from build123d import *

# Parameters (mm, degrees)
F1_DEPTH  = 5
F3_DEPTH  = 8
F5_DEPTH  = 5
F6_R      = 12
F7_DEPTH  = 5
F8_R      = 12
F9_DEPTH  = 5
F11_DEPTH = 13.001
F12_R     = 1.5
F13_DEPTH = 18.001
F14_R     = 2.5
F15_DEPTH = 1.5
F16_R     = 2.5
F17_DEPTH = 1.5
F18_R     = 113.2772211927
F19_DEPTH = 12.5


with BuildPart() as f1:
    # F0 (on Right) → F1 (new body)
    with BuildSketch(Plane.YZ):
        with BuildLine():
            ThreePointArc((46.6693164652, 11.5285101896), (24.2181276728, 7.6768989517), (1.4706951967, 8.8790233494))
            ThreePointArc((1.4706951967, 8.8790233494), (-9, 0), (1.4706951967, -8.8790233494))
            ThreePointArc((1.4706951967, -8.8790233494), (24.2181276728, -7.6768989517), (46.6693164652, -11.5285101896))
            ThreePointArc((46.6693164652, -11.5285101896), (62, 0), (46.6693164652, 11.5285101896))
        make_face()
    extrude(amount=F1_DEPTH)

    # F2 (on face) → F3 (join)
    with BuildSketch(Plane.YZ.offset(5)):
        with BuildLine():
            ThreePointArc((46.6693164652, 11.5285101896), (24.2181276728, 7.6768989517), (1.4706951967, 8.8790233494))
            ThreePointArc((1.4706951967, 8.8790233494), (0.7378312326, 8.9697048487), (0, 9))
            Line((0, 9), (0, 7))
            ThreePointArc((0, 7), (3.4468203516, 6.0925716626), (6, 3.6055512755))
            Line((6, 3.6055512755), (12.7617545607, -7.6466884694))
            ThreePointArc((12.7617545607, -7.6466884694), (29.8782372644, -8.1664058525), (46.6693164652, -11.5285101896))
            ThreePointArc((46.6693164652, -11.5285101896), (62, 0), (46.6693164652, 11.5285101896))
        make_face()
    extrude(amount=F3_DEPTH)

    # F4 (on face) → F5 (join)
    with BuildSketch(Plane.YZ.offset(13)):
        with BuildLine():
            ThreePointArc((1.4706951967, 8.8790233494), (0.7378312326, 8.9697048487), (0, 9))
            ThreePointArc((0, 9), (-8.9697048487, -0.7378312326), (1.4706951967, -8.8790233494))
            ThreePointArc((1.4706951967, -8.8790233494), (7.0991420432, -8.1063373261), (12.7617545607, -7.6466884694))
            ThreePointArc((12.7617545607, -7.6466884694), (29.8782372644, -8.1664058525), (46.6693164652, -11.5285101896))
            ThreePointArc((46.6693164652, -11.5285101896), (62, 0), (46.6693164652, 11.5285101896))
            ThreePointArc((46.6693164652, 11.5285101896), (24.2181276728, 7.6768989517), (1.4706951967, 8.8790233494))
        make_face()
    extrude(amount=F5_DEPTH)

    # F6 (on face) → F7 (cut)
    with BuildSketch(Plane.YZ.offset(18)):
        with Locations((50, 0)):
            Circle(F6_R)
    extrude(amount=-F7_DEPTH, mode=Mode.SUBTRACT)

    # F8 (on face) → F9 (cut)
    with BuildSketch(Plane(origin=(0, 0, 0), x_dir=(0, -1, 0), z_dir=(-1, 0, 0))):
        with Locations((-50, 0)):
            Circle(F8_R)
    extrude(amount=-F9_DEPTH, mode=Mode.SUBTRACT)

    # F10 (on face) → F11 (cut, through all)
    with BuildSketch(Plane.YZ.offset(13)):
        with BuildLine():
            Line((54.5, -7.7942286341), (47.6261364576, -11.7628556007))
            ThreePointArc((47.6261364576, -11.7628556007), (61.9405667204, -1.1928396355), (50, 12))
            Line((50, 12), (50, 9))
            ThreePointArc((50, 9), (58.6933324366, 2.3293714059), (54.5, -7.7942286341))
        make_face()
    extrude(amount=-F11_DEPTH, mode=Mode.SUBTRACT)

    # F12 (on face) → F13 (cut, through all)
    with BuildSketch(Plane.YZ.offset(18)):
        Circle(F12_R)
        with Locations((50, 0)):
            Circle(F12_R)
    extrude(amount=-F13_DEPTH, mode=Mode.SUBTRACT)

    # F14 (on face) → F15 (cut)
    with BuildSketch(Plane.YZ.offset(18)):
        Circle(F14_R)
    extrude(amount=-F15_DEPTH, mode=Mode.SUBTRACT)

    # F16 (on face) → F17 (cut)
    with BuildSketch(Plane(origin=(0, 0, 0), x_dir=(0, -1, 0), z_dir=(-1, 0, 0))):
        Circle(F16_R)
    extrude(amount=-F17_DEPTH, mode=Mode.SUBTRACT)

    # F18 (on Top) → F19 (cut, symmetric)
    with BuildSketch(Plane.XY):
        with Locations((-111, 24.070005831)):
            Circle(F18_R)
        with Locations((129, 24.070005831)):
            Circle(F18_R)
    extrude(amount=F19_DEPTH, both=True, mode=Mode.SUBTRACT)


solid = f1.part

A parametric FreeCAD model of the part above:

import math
import FreeCAD as App
import Part
import Sketcher

V = App.Vector
Q = App.Units.Quantity

doc = App.newDocument("Part")
params = doc.addObject("Spreadsheet::Sheet", "Params")
for row, (alias, value) in enumerate([
    ("sketch1_radius", "9 mm"),
    ("sketch1_radius2", "12 mm"),
    ("pad1_length", "5 mm"),
    ("sketch2_radius", "9 mm"),
    ("sketch2_radius2", "7 mm"),
    ("sketch2_radius3", "12 mm"),
    ("pad2_length", "8 mm"),
    ("sketch3_radius", "9 mm"),
    ("sketch3_radius2", "12 mm"),
    ("pad3_length", "5 mm"),
    ("sketch4_diameter", "24 mm"),
    ("pocket1_length", "5 mm"),
    ("sketch5_diameter", "24 mm"),
    ("pocket2_length", "5 mm"),
    ("sketch6_radius", "12 mm"),
    ("sketch6_radius2", "9 mm"),
    ("sketch7_diameter", "3 mm"),
    ("sketch8_diameter", "5 mm"),
    ("pocket5_length", "1.5 mm"),
    ("sketch9_diameter", "5 mm"),
    ("pocket6_length", "1.5 mm"),
    ("pocket7_length", "25 mm"),
], start=1):
    params.set(f"A{row}", alias)
    params.set(f"B{row}", "=" + value)
    params.setAlias(f"B{row}", alias)

body = doc.addObject("PartDesign::Body", "Body")

# Sketch on YZ plane
sketch1 = body.newObject("Sketcher::SketchObject", "Sketch")
sketch1.AttachmentSupport = (doc.getObject("YZ_Plane"), [""])
sketch1.MapMode = "FlatFace"
sketch1.addGeometry([
    Part.ArcOfCircle(Part.Circle(V(18, 110, 0), V(0, 0, 1), 102), math.radians(-99), math.radians(-74)),
    Part.ArcOfCircle(Part.Circle(V(0, 0, 0), V(0, 0, 1), 9), math.radians(81), math.radians(279)),
    Part.ArcOfCircle(Part.Circle(V(18, -110, 0), V(0, 0, 1), 102), math.radians(74), math.radians(99)),
    Part.ArcOfCircle(Part.Circle(V(50, 0, 0), V(0, 0, 1), 12), math.radians(-106), math.radians(106)),
], False)
sketch1.addConstraint([
    Sketcher.Constraint("Tangent", 0, 1, 1, 1),
    Sketcher.Constraint("Tangent", 1, 2, 2, 2),
    Sketcher.Constraint("Tangent", 2, 1, 3, 1),
    Sketcher.Constraint("Tangent", 3, 2, 0, 2),
    Sketcher.Constraint("Coincident", 1, 3, -1, 1),
    Sketcher.Constraint("Equal", 0, 2),
    Sketcher.Constraint("PointOnObject", 3, 3, -1),
    Sketcher.Constraint("Radius", 1, 9.0),
    Sketcher.Constraint("Radius", 3, 12.0),
    Sketcher.Constraint("DistanceY", -1, 1, 0, 3, 110.0),
    Sketcher.Constraint("DistanceX", -1, 1, 3, 3, 50.0),
])
sketch1.setExpression("Constraints[7]", "Params.sketch1_radius")
sketch1.setExpression("Constraints[8]", "Params.sketch1_radius2")
pad1 = body.newObject("PartDesign::Pad", "Pad")
pad1.Profile = sketch1
pad1.setExpression("Length", "Params.pad1_length")

# Sketch on YZ plane
sketch2 = body.newObject("Sketcher::SketchObject", "Sketch001")
sketch2.AttachmentSupport = (doc.getObject("YZ_Plane"), [""])
sketch2.MapMode = "FlatFace"
sketch2.AttachmentOffset = App.Placement(V(0, 0, 5), App.Rotation())
sketch2.addGeometry([
    Part.ArcOfCircle(Part.Circle(V(18.2, 110, 0), V(0, 0, 1), 102.5), math.radians(-99), math.radians(-74)),  # 0
    Part.ArcOfCircle(Part.Circle(V(0, 0, 0), V(0, 0, 1), 9), math.radians(80.6), math.radians(90)),  # 1
    Part.LineSegment(V(0, 9, 0), V(0, 7, 0)),  # 2
    Part.ArcOfCircle(Part.Circle(V(0, 0, 0), V(0, 0, 1), 7), math.radians(31), math.radians(90)),  # 3
    Part.LineSegment(V(6, 3.6, 0), V(12.8, -7.6, 0)),  # 4
    Part.ArcOfCircle(Part.Circle(V(18.2, -110, 0), V(0, 0, 1), 102.5), math.radians(73.89), math.radians(93.05)),  # 5
    Part.ArcOfCircle(Part.Circle(V(50, 0, 0), V(0, 0, 1), 12), math.radians(-106), math.radians(106)),  # 6
], False)
sketch2.addConstraint([
    Sketcher.Constraint("Tangent", 0, 1, 1, 1),
    Sketcher.Constraint("Coincident", 1, 2, 2, 1),
    Sketcher.Constraint("Coincident", 2, 2, 3, 2),
    Sketcher.Constraint("Tangent", 3, 1, 4, 1),
    Sketcher.Constraint("Coincident", 4, 2, 5, 2),
    Sketcher.Constraint("Tangent", 5, 1, 6, 1),
    Sketcher.Constraint("Tangent", 6, 2, 0, 2),
    Sketcher.Constraint("Vertical", 2),
    Sketcher.Constraint("Coincident", 1, 3, -1, 1),
    Sketcher.Constraint("Coincident", 3, 3, -1, 1),
    Sketcher.Constraint("Equal", 0, 5),
    Sketcher.Constraint("Symmetric", 0, 3, 5, 3, -1),
    Sketcher.Constraint("PointOnObject", 1, 2, -2),
    Sketcher.Constraint("Radius", 1, 9.0),
    Sketcher.Constraint("Radius", 3, 7.0),
    Sketcher.Constraint("Radius", 6, 12.0),
    Sketcher.Constraint("DistanceY", -1, 1, 0, 3, 110.0),
    Sketcher.Constraint("DistanceX", -1, 1, 6, 3, 50.0),
    Sketcher.Constraint("DistanceX", -1, 1, 3, 1, 6.0),
])
sketch2.setExpression("Constraints[13]", "Params.sketch2_radius")
sketch2.setExpression("Constraints[14]", "Params.sketch2_radius2")
sketch2.setExpression("Constraints[15]", "Params.sketch2_radius3")
pad2 = body.newObject("PartDesign::Pad", "Pad001")
pad2.Profile = sketch2
pad2.setExpression("Length", "Params.pad2_length")

# Sketch on YZ plane
sketch3 = body.newObject("Sketcher::SketchObject", "Sketch002")
sketch3.AttachmentSupport = (doc.getObject("YZ_Plane"), [""])
sketch3.MapMode = "FlatFace"
sketch3.AttachmentOffset = App.Placement(V(0, 0, 13), App.Rotation())
sketch3.addGeometry([
    Part.ArcOfCircle(Part.Circle(V(0, 0, 0), V(0, 0, 1), 9), math.radians(80.6), math.radians(90)),  # 0
    Part.ArcOfCircle(Part.Circle(V(0, 0, 0), V(0, 0, 1), 9), math.radians(90), math.radians(279)),  # 1
    Part.ArcOfCircle(Part.Circle(V(18.2, -110, 0), V(0, 0, 1), 102.5), math.radians(93.05), math.radians(99.4)),  # 2
    Part.ArcOfCircle(Part.Circle(V(18.2, -110, 0), V(0, 0, 1), 102.5), math.radians(73.89), math.radians(93.05)),  # 3
    Part.ArcOfCircle(Part.Circle(V(50, 0, 0), V(0, 0, 1), 12), math.radians(-106), math.radians(106)),  # 4
    Part.ArcOfCircle(Part.Circle(V(18.2, 110, 0), V(0, 0, 1), 102.5), math.radians(-99), math.radians(-74)),  # 5
], False)
sketch3.addConstraint([
    Sketcher.Constraint("Tangent", 0, 2, 1, 1),
    Sketcher.Constraint("Tangent", 1, 2, 2, 2),
    Sketcher.Constraint("Tangent", 2, 1, 3, 2),
    Sketcher.Constraint("Tangent", 3, 1, 4, 1),
    Sketcher.Constraint("Tangent", 4, 2, 5, 2),
    Sketcher.Constraint("Tangent", 5, 1, 0, 1),
    Sketcher.Constraint("Coincident", 0, 3, -1, 1),
    Sketcher.Constraint("Equal", 0, 1),
    Sketcher.Constraint("Equal", 2, 3),
    Sketcher.Constraint("Equal", 3, 5),
    Sketcher.Constraint("PointOnObject", 4, 3, -1),
    Sketcher.Constraint("PointOnObject", 0, 2, -2),
    Sketcher.Constraint("Radius", 0, 9.0),
    Sketcher.Constraint("Radius", 4, 12.0),
    Sketcher.Constraint("DistanceY", 2, 3, -1, 1, 110.0),
    Sketcher.Constraint("DistanceX", -1, 1, 4, 3, 50.0),
    Sketcher.Constraint("DistanceY", 2, 1, 4, 2, 19.175199),
])
sketch3.setExpression("Constraints[12]", "Params.sketch3_radius")
sketch3.setExpression("Constraints[13]", "Params.sketch3_radius2")
pad3 = body.newObject("PartDesign::Pad", "Pad002")
pad3.Profile = sketch3
pad3.setExpression("Length", "Params.pad3_length")

# Sketch on YZ plane
sketch4 = body.newObject("Sketcher::SketchObject", "Sketch003")
sketch4.AttachmentSupport = (doc.getObject("YZ_Plane"), [""])
sketch4.MapMode = "FlatFace"
sketch4.AttachmentOffset = App.Placement(V(0, 0, 18), App.Rotation())
sketch4.addGeometry(Part.Circle(V(50, 0, 0), V(0, 0, 1), 12), False)
sketch4.addConstraint([
    Sketcher.Constraint("PointOnObject", 0, 3, -1),
    Sketcher.Constraint("Diameter", 0, 24.0),
    Sketcher.Constraint("DistanceX", -1, 1, 0, 3, 50.0),
])
sketch4.setExpression("Constraints[1]", "Params.sketch4_diameter")
pocket1 = body.newObject("PartDesign::Pocket", "Pocket")
pocket1.Profile = sketch4
pocket1.setExpression("Length", "Params.pocket1_length")

# Sketch on YZ plane
sketch5 = body.newObject("Sketcher::SketchObject", "Sketch004")
sketch5.AttachmentSupport = (doc.getObject("YZ_Plane"), [""])
sketch5.MapMode = "FlatFace"
sketch5.addGeometry(Part.Circle(V(50, 0, 0), V(0, 0, 1), 12), False)
sketch5.addConstraint([
    Sketcher.Constraint("PointOnObject", 0, 3, -1),
    Sketcher.Constraint("Diameter", 0, 24.0),
    Sketcher.Constraint("DistanceX", -1, 1, 0, 3, 50.0),
])
sketch5.setExpression("Constraints[1]", "Params.sketch5_diameter")
pocket2 = body.newObject("PartDesign::Pocket", "Pocket001")
pocket2.Profile = sketch5
pocket2.setExpression("Length", "Params.pocket2_length")
pocket2.Reversed = True

# Sketch on YZ plane
sketch6 = body.newObject("Sketcher::SketchObject", "Sketch005")
sketch6.AttachmentSupport = (doc.getObject("YZ_Plane"), [""])
sketch6.MapMode = "FlatFace"
sketch6.AttachmentOffset = App.Placement(V(0, 0, 13), App.Rotation())
sketch6.addGeometry([
    Part.LineSegment(V(54.5, -7.8, 0), V(47.6, -11.8, 0)),
    Part.ArcOfCircle(Part.Circle(V(50, 0, 0), V(0, 0, 1), 12), math.radians(-101), math.radians(90)),
    Part.LineSegment(V(50, 12, 0), V(50, 9, 0)),
    Part.ArcOfCircle(Part.Circle(V(50, 0, 0), V(0, 0, 1), 9), math.radians(-60), math.radians(90)),
], False)
sketch6.addConstraint([
    Sketcher.Constraint("Coincident", 0, 2, 1, 1),
    Sketcher.Constraint("Coincident", 1, 2, 2, 1),
    Sketcher.Constraint("Coincident", 2, 2, 3, 2),
    Sketcher.Constraint("Tangent", 3, 1, 0, 1),
    Sketcher.Constraint("Vertical", 2),
    Sketcher.Constraint("Coincident", 3, 3, 1, 3),
    Sketcher.Constraint("PointOnObject", 1, 3, -1),
    Sketcher.Constraint("Vertical", 3, 3, 1, 2),
    Sketcher.Constraint("Radius", 1, 12.0),
    Sketcher.Constraint("Radius", 3, 9.0),
    Sketcher.Constraint("Angle", 0, Q("-150 deg")),
    Sketcher.Constraint("DistanceX", -1, 1, 1, 3, 50.0),
])
sketch6.setExpression("Constraints[8]", "Params.sketch6_radius")
sketch6.setExpression("Constraints[9]", "Params.sketch6_radius2")
pocket3 = body.newObject("PartDesign::Pocket", "Pocket002")
pocket3.Profile = sketch6
pocket3.Type = "ThroughAll"

# Sketch on YZ plane
sketch7 = body.newObject("Sketcher::SketchObject", "Sketch006")
sketch7.AttachmentSupport = (doc.getObject("YZ_Plane"), [""])
sketch7.MapMode = "FlatFace"
sketch7.AttachmentOffset = App.Placement(V(0, 0, 18), App.Rotation())
sketch7.addGeometry([
    Part.Circle(V(0, 0, 0), V(0, 0, 1), 1.5),
    Part.Circle(V(50, 0, 0), V(0, 0, 1), 1.5),
], False)
sketch7.addConstraint([
    Sketcher.Constraint("Coincident", 0, 3, -1, 1),
    Sketcher.Constraint("Equal", 0, 1),
    Sketcher.Constraint("PointOnObject", 1, 3, -1),
    Sketcher.Constraint("Diameter", 0, 3.0),
    Sketcher.Constraint("DistanceX", -1, 1, 1, 3, 50.0),
])
sketch7.setExpression("Constraints[3]", "Params.sketch7_diameter")
pocket4 = body.newObject("PartDesign::Pocket", "Pocket003")
pocket4.Profile = sketch7
pocket4.Type = "ThroughAll"

# Sketch on YZ plane
sketch8 = body.newObject("Sketcher::SketchObject", "Sketch007")
sketch8.AttachmentSupport = (doc.getObject("YZ_Plane"), [""])
sketch8.MapMode = "FlatFace"
sketch8.AttachmentOffset = App.Placement(V(0, 0, 18), App.Rotation())
sketch8.addGeometry(Part.Circle(V(0, 0, 0), V(0, 0, 1), 2.5), False)
sketch8.addConstraint([
    Sketcher.Constraint("Coincident", 0, 3, -1, 1),
    Sketcher.Constraint("Diameter", 0, 5.0),
])
sketch8.setExpression("Constraints[1]", "Params.sketch8_diameter")
pocket5 = body.newObject("PartDesign::Pocket", "Pocket004")
pocket5.Profile = sketch8
pocket5.setExpression("Length", "Params.pocket5_length")

# Sketch on YZ plane
sketch9 = body.newObject("Sketcher::SketchObject", "Sketch008")
sketch9.AttachmentSupport = (doc.getObject("YZ_Plane"), [""])
sketch9.MapMode = "FlatFace"
sketch9.addGeometry(Part.Circle(V(0, 0, 0), V(0, 0, 1), 2.5), False)
sketch9.addConstraint([
    Sketcher.Constraint("Coincident", 0, 3, -1, 1),
    Sketcher.Constraint("Diameter", 0, 5.0),
])
sketch9.setExpression("Constraints[1]", "Params.sketch9_diameter")
pocket6 = body.newObject("PartDesign::Pocket", "Pocket005")
pocket6.Profile = sketch9
pocket6.setExpression("Length", "Params.pocket6_length")
pocket6.Reversed = True

# Sketch on XY plane
sketch10 = body.newObject("Sketcher::SketchObject", "Sketch009")
sketch10.AttachmentSupport = (doc.getObject("XY_Plane"), [""])
sketch10.MapMode = "FlatFace"
sketch10.addGeometry([
    Part.Circle(V(-111, 24, 0), V(0, 0, 1), 113),
    Part.Circle(V(129, 24, 0), V(0, 0, 1), 113),
], False)
sketch10.addConstraint([
    Sketcher.Constraint("Equal", 0, 1),
    Sketcher.Constraint("Horizontal", 0, 3, 1, 3),
    Sketcher.Constraint("DistanceX", 0, 3, -1, 1, 111.0),
    Sketcher.Constraint("DistanceX", -1, 1, 1, 3, 129.0),
    Sketcher.Constraint("Diameter", 0, 226.554442),
    Sketcher.Constraint("DistanceY", -1, 1, 0, 3, 24.070006),
])
pocket7 = body.newObject("PartDesign::Pocket", "Pocket006")
pocket7.Profile = sketch10
pocket7.setExpression("Length", "Params.pocket7_length")
pocket7.Midplane = True

doc.recompute()
